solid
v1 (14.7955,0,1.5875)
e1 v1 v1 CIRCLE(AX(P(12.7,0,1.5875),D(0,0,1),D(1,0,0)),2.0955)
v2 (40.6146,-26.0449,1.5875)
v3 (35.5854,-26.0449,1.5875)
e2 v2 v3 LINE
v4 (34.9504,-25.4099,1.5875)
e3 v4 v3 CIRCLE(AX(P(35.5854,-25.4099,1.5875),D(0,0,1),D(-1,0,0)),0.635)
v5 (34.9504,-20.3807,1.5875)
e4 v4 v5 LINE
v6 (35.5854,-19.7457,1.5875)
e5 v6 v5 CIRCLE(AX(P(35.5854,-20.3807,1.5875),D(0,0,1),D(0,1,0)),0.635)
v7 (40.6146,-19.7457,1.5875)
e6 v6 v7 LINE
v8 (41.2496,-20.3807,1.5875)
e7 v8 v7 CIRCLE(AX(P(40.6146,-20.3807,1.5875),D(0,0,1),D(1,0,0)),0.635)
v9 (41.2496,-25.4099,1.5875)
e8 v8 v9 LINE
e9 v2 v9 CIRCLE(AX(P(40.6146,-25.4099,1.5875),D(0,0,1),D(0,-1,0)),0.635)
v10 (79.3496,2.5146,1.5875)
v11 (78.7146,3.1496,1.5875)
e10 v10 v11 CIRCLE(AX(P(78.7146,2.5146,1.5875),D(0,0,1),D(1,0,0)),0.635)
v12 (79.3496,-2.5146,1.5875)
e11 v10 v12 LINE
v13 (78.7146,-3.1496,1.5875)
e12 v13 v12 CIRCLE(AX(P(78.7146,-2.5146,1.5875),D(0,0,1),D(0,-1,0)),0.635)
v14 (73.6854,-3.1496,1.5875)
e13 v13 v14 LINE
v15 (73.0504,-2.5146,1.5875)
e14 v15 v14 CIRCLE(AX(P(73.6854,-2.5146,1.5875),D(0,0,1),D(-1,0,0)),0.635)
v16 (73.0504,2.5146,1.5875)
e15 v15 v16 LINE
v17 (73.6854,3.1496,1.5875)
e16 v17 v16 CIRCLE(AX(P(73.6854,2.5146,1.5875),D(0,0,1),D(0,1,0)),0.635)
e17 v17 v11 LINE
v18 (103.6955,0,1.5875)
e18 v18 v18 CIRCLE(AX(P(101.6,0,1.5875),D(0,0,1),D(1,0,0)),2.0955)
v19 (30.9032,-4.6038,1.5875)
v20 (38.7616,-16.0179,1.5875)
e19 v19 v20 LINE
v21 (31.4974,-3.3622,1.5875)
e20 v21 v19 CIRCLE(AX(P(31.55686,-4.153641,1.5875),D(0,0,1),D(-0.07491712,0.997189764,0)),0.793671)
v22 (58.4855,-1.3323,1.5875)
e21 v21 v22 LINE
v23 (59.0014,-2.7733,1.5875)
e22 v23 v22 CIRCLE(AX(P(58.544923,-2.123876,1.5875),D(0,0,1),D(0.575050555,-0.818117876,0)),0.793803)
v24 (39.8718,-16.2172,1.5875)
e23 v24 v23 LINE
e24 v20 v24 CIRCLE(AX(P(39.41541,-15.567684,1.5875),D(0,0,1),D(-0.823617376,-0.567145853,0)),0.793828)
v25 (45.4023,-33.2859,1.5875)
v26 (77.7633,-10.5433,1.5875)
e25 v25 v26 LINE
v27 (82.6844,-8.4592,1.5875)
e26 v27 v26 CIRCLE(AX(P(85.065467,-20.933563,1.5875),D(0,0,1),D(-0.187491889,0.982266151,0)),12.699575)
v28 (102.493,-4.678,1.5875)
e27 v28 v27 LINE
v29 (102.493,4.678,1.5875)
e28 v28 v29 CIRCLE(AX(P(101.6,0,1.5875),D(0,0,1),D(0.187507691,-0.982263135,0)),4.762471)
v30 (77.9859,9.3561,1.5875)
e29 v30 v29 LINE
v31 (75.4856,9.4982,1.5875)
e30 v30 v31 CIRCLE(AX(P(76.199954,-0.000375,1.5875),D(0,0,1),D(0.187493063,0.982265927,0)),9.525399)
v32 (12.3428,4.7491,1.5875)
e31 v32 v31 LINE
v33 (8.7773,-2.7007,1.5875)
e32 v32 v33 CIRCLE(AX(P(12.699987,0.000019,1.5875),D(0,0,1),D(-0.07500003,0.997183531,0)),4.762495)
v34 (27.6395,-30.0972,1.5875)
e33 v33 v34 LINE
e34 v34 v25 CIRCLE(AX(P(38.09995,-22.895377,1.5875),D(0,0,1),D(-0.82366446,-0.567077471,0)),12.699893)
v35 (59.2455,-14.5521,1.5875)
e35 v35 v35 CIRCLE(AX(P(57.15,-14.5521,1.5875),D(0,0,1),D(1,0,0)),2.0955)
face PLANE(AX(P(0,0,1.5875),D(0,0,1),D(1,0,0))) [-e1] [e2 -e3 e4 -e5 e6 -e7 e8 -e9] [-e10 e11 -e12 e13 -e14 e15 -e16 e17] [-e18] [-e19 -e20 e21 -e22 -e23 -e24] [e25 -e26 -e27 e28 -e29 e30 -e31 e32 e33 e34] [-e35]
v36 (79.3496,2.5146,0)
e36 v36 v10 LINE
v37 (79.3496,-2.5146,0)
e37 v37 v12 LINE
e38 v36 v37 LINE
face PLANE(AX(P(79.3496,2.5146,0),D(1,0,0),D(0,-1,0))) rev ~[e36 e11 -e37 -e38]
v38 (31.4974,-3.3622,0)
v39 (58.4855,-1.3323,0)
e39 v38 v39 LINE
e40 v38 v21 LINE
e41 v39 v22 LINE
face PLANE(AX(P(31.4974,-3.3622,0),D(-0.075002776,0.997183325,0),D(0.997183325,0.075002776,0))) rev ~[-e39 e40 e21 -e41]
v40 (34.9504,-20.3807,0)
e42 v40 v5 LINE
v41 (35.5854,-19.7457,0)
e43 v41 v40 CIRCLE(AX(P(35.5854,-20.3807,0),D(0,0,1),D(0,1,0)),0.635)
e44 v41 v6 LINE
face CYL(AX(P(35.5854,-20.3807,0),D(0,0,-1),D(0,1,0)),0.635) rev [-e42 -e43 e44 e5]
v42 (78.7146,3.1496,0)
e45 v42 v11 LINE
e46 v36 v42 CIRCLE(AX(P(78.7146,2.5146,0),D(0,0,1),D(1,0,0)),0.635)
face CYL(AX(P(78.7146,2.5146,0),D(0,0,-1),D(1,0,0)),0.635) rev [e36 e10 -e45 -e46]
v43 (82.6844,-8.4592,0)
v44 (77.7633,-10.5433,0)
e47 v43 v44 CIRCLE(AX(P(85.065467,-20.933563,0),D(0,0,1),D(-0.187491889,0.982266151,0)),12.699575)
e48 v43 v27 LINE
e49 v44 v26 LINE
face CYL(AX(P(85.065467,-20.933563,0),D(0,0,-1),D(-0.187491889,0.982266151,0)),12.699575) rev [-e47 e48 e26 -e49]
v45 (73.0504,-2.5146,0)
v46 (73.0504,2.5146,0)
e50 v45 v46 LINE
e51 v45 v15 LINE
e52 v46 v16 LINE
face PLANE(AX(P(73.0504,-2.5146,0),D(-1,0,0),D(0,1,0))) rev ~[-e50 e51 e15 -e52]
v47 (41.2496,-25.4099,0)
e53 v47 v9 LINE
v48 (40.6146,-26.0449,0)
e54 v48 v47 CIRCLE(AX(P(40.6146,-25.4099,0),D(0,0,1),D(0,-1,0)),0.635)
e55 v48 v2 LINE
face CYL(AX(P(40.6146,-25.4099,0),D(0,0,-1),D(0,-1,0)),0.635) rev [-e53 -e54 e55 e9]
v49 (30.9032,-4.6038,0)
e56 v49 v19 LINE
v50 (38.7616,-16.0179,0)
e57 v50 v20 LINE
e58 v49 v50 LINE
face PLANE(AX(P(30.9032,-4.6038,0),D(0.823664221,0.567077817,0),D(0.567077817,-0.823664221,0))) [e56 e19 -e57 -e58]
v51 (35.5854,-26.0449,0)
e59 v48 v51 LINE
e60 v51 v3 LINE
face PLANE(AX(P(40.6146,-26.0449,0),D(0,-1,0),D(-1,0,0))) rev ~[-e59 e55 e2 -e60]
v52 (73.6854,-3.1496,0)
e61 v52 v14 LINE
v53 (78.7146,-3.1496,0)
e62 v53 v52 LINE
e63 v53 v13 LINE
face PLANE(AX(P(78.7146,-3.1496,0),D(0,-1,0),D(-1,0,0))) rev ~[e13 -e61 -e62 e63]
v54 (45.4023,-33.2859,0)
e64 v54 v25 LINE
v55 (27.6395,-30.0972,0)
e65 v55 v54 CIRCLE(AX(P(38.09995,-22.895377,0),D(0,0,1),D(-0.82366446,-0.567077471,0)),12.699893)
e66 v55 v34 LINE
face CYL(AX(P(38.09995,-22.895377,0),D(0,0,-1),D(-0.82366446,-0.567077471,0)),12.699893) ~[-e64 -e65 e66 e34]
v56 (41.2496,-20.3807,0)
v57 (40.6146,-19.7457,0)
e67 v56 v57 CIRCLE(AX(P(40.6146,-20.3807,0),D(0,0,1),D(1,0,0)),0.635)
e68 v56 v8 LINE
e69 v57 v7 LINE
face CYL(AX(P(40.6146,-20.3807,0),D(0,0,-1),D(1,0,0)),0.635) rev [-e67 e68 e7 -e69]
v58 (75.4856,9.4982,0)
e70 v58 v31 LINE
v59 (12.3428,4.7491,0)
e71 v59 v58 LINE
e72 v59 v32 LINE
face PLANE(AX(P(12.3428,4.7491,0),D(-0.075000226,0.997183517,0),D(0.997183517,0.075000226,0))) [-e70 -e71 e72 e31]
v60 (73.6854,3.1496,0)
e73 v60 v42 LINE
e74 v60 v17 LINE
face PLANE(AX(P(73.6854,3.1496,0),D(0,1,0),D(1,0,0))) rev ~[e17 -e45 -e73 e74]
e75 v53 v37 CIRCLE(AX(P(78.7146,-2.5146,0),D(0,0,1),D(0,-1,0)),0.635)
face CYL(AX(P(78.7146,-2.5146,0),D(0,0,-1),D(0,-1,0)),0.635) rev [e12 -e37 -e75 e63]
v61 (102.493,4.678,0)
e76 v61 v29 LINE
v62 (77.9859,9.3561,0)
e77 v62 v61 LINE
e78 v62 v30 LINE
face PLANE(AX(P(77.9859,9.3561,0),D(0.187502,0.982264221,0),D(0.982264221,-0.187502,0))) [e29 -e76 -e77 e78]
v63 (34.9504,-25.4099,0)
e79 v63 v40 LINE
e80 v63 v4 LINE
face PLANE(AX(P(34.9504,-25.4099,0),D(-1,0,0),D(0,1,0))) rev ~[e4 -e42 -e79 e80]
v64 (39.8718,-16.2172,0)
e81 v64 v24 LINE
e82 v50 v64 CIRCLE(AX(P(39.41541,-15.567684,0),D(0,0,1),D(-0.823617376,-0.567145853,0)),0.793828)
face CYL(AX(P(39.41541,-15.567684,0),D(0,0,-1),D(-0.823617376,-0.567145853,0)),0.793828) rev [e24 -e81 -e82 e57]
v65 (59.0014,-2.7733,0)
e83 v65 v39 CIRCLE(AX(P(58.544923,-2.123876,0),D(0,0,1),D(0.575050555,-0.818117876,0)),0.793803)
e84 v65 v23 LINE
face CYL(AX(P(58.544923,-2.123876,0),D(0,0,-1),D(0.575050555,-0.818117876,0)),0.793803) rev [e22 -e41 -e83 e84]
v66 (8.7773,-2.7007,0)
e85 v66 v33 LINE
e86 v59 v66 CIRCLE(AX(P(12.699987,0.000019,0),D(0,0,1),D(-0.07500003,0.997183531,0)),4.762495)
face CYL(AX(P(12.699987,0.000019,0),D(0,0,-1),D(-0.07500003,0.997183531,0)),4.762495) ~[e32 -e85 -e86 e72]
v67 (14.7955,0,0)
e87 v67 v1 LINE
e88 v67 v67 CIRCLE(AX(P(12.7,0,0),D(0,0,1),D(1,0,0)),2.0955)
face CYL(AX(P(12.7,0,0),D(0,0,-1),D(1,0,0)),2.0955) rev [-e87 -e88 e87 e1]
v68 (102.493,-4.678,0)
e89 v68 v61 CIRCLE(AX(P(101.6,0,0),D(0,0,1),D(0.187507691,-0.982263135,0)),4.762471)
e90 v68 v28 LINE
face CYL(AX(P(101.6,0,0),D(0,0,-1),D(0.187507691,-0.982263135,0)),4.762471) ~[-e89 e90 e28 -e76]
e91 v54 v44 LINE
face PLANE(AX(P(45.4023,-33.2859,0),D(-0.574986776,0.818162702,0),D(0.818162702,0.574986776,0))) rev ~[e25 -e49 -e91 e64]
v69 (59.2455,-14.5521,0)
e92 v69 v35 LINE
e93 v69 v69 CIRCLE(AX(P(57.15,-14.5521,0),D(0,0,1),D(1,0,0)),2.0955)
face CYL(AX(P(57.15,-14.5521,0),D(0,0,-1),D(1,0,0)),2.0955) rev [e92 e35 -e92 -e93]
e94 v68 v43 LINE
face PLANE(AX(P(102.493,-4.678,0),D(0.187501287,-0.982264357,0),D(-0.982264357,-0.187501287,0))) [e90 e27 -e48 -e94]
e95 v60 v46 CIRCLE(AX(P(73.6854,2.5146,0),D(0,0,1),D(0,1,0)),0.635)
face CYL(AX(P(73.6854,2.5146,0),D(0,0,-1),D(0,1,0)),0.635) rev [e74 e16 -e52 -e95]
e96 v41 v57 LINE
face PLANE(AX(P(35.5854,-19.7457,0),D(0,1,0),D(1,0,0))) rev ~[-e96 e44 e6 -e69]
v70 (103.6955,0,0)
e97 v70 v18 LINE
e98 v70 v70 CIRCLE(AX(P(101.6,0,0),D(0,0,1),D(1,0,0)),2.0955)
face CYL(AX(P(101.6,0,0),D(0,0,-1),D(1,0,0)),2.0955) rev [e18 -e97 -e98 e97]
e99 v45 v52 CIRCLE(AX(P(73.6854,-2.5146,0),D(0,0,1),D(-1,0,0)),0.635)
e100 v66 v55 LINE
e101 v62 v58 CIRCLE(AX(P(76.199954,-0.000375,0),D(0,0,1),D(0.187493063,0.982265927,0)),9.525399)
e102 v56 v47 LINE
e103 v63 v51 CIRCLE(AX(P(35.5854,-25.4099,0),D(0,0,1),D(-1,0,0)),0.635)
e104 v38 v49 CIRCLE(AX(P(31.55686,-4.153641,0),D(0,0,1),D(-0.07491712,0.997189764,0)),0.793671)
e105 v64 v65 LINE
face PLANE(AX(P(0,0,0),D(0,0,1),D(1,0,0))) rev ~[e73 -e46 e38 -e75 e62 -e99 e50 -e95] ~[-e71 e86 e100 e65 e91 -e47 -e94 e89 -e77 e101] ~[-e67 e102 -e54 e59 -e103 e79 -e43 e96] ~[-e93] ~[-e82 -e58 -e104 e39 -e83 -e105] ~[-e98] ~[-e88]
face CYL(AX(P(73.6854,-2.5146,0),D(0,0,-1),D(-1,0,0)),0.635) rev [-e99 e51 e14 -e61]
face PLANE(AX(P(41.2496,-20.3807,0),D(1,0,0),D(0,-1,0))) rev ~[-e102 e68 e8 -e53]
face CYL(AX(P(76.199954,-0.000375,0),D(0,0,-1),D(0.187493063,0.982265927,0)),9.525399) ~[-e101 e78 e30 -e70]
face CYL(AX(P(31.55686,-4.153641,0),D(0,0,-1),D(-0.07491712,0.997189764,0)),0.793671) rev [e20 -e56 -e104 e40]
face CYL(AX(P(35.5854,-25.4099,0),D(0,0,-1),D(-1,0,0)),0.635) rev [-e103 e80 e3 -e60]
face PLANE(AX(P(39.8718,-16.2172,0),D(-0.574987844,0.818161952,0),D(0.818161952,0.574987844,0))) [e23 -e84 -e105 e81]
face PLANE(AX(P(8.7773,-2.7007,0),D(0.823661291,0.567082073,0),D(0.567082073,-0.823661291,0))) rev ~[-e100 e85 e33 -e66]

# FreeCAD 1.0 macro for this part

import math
import FreeCAD as App
import Part
import Sketcher
Q = App.Units.Quantity

doc = App.newDocument("Part")
body = doc.addObject("PartDesign::Body", "Body")

sketch1 = doc.addObject("Sketcher::SketchObject", "Sketch")
body.addObject(sketch1)
sketch1.AttachmentSupport = (doc.XY_Plane, [""])
sketch1.MapMode = "FlatFace"
sketch1.addGeometry(Part.LineSegment(App.Vector(75.5, 9.5, 0), App.Vector(12.3, 4.7, 0)), False)
sketch1.addGeometry(Part.ArcOfCircle(Part.Circle(App.Vector(12.7, 0, 0), App.Vector(0, 0, 1), 4.8), math.radians(94), math.radians(215)), False)
sketch1.addGeometry(Part.LineSegment(App.Vector(8.8, -2.7, 0), App.Vector(27.6, -30.1, 0)), False)
sketch1.addGeometry(Part.ArcOfCircle(Part.Circle(App.Vector(38.1, -22.9, 0), App.Vector(0, 0, 1), 12.7), math.radians(-145), math.radians(-55)), False)
sketch1.addGeometry(Part.LineSegment(App.Vector(45.4, -33.3, 0), App.Vector(77.8, -10.5, 0)), False)
sketch1.addGeometry(Part.ArcOfCircle(Part.Circle(App.Vector(85.1, -20.9, 0), App.Vector(0, 0, 1), 12.7), math.radians(101), math.radians(125)), False)
sketch1.addGeometry(Part.LineSegment(App.Vector(82.7, -8.5, 0), App.Vector(102.5, -4.7, 0)), False)
sketch1.addGeometry(Part.ArcOfCircle(Part.Circle(App.Vector(101.6, 0, 0), App.Vector(0, 0, 1), 4.8), math.radians(-79), math.radians(79)), False)
sketch1.addGeometry(Part.LineSegment(App.Vector(102.5, 4.7, 0), App.Vector(78, 9.4, 0)), False)
sketch1.addGeometry(Part.ArcOfCircle(Part.Circle(App.Vector(76.2, 0, 0), App.Vector(0, 0, 1), 9.5), math.radians(79.19), math.radians(94.3)), False)
sketch1.addGeometry(Part.ArcOfCircle(Part.Circle(App.Vector(35.6, -20.4, 0), App.Vector(0, 0, 1), 0.6), math.radians(90), math.radians(180)), False)
sketch1.addGeometry(Part.LineSegment(App.Vector(35.6, -19.7, 0), App.Vector(40.6, -19.7, 0)), False)
sketch1.addGeometry(Part.ArcOfCircle(Part.Circle(App.Vector(40.6, -20.4, 0), App.Vector(0, 0, 1), 0.6), math.radians(0), math.radians(90)), False)
sketch1.addGeometry(Part.LineSegment(App.Vector(41.2, -20.4, 0), App.Vector(41.2, -25.4, 0)), False)
sketch1.addGeometry(Part.ArcOfCircle(Part.Circle(App.Vector(40.6, -25.4, 0), App.Vector(0, 0, 1), 0.6), math.radians(-90), math.radians(0)), False)
sketch1.addGeometry(Part.LineSegment(App.Vector(40.6, -26, 0), App.Vector(35.6, -26, 0)), False)
sketch1.addGeometry(Part.ArcOfCircle(Part.Circle(App.Vector(35.6, -25.4, 0), App.Vector(0, 0, 1), 0.6), math.radians(180), math.radians(270)), False)
sketch1.addGeometry(Part.LineSegment(App.Vector(35, -25.4, 0), App.Vector(35, -20.4, 0)), False)
sketch1.addGeometry(Part.Circle(App.Vector(57.1, -14.6, 0), App.Vector(0, 0, 1), 2.1), False)
sketch1.addGeometry(Part.ArcOfCircle(Part.Circle(App.Vector(31.6, -4.2, 0), App.Vector(0, 0, 1), 0.8), math.radians(94), math.radians(215)), False)
sketch1.addGeometry(Part.LineSegment(App.Vector(31.5, -3.4, 0), App.Vector(58.5, -1.3, 0)), False)
sketch1.addGeometry(Part.ArcOfCircle(Part.Circle(App.Vector(58.5, -2.1, 0), App.Vector(0, 0, 1), 0.8), math.radians(-55), math.radians(94)), False)
sketch1.addGeometry(Part.LineSegment(App.Vector(59, -2.8, 0), App.Vector(39.9, -16.2, 0)), False)
sketch1.addGeometry(Part.ArcOfCircle(Part.Circle(App.Vector(39.4, -15.6, 0), App.Vector(0, 0, 1), 0.8), math.radians(-145), math.radians(-55)), False)
sketch1.addGeometry(Part.LineSegment(App.Vector(38.8, -16, 0), App.Vector(30.9, -4.6, 0)), False)
sketch1.addGeometry(Part.Circle(App.Vector(12.7, 0, 0), App.Vector(0, 0, 1), 2.1), False)
sketch1.addGeometry(Part.ArcOfCircle(Part.Circle(App.Vector(73.7, 2.5, 0), App.Vector(0, 0, 1), 0.6), math.radians(90), math.radians(180)), False)
sketch1.addGeometry(Part.LineSegment(App.Vector(73.7, 3.1, 0), App.Vector(78.7, 3.1, 0)), False)
sketch1.addGeometry(Part.ArcOfCircle(Part.Circle(App.Vector(78.7, 2.5, 0), App.Vector(0, 0, 1), 0.6), math.radians(0), math.radians(90)), False)
sketch1.addGeometry(Part.LineSegment(App.Vector(79.3, 2.5, 0), App.Vector(79.3, -2.5, 0)), False)
sketch1.addGeometry(Part.ArcOfCircle(Part.Circle(App.Vector(78.7, -2.5, 0), App.Vector(0, 0, 1), 0.6), math.radians(-90), math.radians(0)), False)
sketch1.addGeometry(Part.LineSegment(App.Vector(78.7, -3.1, 0), App.Vector(73.7, -3.1, 0)), False)
sketch1.addGeometry(Part.ArcOfCircle(Part.Circle(App.Vector(73.7, -2.5, 0), App.Vector(0, 0, 1), 0.6), math.radians(180), math.radians(270)), False)
sketch1.addGeometry(Part.LineSegment(App.Vector(73.1, -2.5, 0), App.Vector(73.1, 2.5, 0)), False)
sketch1.addGeometry(Part.Circle(App.Vector(101.6, 0, 0), App.Vector(0, 0, 1), 2.1), False)
sketch1.addConstraint(Sketcher.Constraint("Tangent", 0, 2, 1, 1))
sketch1.addConstraint(Sketcher.Constraint("Tangent", 1, 2, 2, 1))
sketch1.addConstraint(Sketcher.Constraint("Tangent", 2, 2, 3, 1))
sketch1.addConstraint(Sketcher.Constraint("Tangent", 3, 2, 4, 1))
sketch1.addConstraint(Sketcher.Constraint("Tangent", 4, 2, 5, 2))
sketch1.addConstraint(Sketcher.Constraint("Tangent", 5, 1, 6, 1))
sketch1.addConstraint(Sketcher.Constraint("Tangent", 6, 2, 7, 1))
sketch1.addConstraint(Sketcher.Constraint("Tangent", 7, 2, 8, 1))
sketch1.addConstraint(Sketcher.Constraint("Tangent", 8, 2, 9, 1))
sketch1.addConstraint(Sketcher.Constraint("Tangent", 9, 2, 0, 1))
sketch1.addConstraint(Sketcher.Constraint("Tangent", 10, 1, 11, 1))
sketch1.addConstraint(Sketcher.Constraint("Tangent", 11, 2, 12, 2))
sketch1.addConstraint(Sketcher.Constraint("Tangent", 12, 1, 13, 1))
sketch1.addConstraint(Sketcher.Constraint("Tangent", 13, 2, 14, 2))
sketch1.addConstraint(Sketcher.Constraint("Tangent", 14, 1, 15, 1))
sketch1.addConstraint(Sketcher.Constraint("Tangent", 15, 2, 16, 2))
sketch1.addConstraint(Sketcher.Constraint("Tangent", 16, 1, 17, 1))
sketch1.addConstraint(Sketcher.Constraint("Tangent", 17, 2, 10, 2))
sketch1.addConstraint(Sketcher.Constraint("Tangent", 19, 1, 20, 1))
sketch1.addConstraint(Sketcher.Constraint("Tangent", 20, 2, 21, 2))
sketch1.addConstraint(Sketcher.Constraint("Tangent", 21, 1, 22, 1))
sketch1.addConstraint(Sketcher.Constraint("Tangent", 22, 2, 23, 2))
sketch1.addConstraint(Sketcher.Constraint("Tangent", 23, 1, 24, 1))
sketch1.addConstraint(Sketcher.Constraint("Tangent", 24, 2, 19, 2))
sketch1.addConstraint(Sketcher.Constraint("Tangent", 26, 1, 27, 1))
sketch1.addConstraint(Sketcher.Constraint("Tangent", 27, 2, 28, 2))
sketch1.addConstraint(Sketcher.Constraint("Tangent", 28, 1, 29, 1))
sketch1.addConstraint(Sketcher.Constraint("Tangent", 29, 2, 30, 2))
sketch1.addConstraint(Sketcher.Constraint("Tangent", 30, 1, 31, 1))
sketch1.addConstraint(Sketcher.Constraint("Tangent", 31, 2, 32, 2))
sketch1.addConstraint(Sketcher.Constraint("Tangent", 32, 1, 33, 1))
sketch1.addConstraint(Sketcher.Constraint("Tangent", 33, 2, 26, 2))
sketch1.addConstraint(Sketcher.Constraint("Horizontal", 11))
sketch1.addConstraint(Sketcher.Constraint("Vertical", 13))
sketch1.addConstraint(Sketcher.Constraint("Horizontal", 15))
sketch1.addConstraint(Sketcher.Constraint("Vertical", 17))
sketch1.addConstraint(Sketcher.Constraint("Horizontal", 27))
sketch1.addConstraint(Sketcher.Constraint("Vertical", 29))
sketch1.addConstraint(Sketcher.Constraint("Horizontal", 31))
sketch1.addConstraint(Sketcher.Constraint("Vertical", 33))
sketch1.addConstraint(Sketcher.Constraint("Coincident", 25, 3, 1, 3))
sketch1.addConstraint(Sketcher.Constraint("Coincident", 34, 3, 7, 3))
sketch1.addConstraint(Sketcher.Constraint("Equal", 3, 5))
sketch1.addConstraint(Sketcher.Constraint("Equal", 1, 7))
sketch1.addConstraint(Sketcher.Constraint("Equal", 10, 12))
sketch1.addConstraint(Sketcher.Constraint("Equal", 12, 14))
sketch1.addConstraint(Sketcher.Constraint("Equal", 14, 16))
sketch1.addConstraint(Sketcher.Constraint("Equal", 19, 21))
sketch1.addConstraint(Sketcher.Constraint("Equal", 21, 23))
sketch1.addConstraint(Sketcher.Constraint("Equal", 18, 25))
sketch1.addConstraint(Sketcher.Constraint("Equal", 16, 26))
sketch1.addConstraint(Sketcher.Constraint("Equal", 26, 28))
sketch1.addConstraint(Sketcher.Constraint("Equal", 28, 30))
sketch1.addConstraint(Sketcher.Constraint("Equal", 30, 32))
sketch1.addConstraint(Sketcher.Constraint("Equal", 25, 34))
sketch1.addConstraint(Sketcher.Constraint("Symmetric", 6, 2, 7, 2, -1))
sketch1.addConstraint(Sketcher.Constraint("PointOnObject", 1, 3, -1))
sketch1.addConstraint(Sketcher.Constraint("PointOnObject", 9, 3, -1))
sketch1.addConstraint(Sketcher.Constraint("Parallel", 0, 20))
sketch1.addConstraint(Sketcher.Constraint("Parallel", 4, 22))
sketch1.addConstraint(Sketcher.Constraint("Parallel", 2, 24))
sketch1.addConstraint(Sketcher.Constraint("Equal", 15, 27))
sketch1.addConstraint(Sketcher.Constraint("Equal", 31, 13))
sketch1.addConstraint(Sketcher.Constraint("Equal", 17, 29))
sketch1.addConstraint(Sketcher.Constraint("Radius", 3, Q("0.5 in")))
sketch1.addConstraint(Sketcher.Constraint("Diameter", 18, Q("0.165 in")))
sketch1.addConstraint(Sketcher.Constraint("Radius", 1, Q("0.1875 in")))
sketch1.addConstraint(Sketcher.Constraint("Radius", 9, Q("0.375 in")))
sketch1.addConstraint(Sketcher.Constraint("Radius", 19, Q("0.031248 in")))
sketch1.addConstraint(Sketcher.Constraint("DistanceX", 1, 3, 3, 3, Q("1 in")))
sketch1.addConstraint(Sketcher.Constraint("DistanceX", 9, 3, 7, 3, Q("1 in")))
sketch1.addConstraint(Sketcher.Constraint("DistanceX", -1, 1, 1, 3, Q("0.5 in")))
sketch1.addConstraint(Sketcher.Constraint("DistanceX", 3, 3, 7, 3, Q("2.5 in")))
sketch1.addConstraint(Sketcher.Constraint("DistanceX", 3, 3, 18, 3, Q("0.75 in")))
sketch1.addConstraint(Sketcher.Constraint("Radius", 10, Q("0.025 in")))
sketch1.addConstraint(Sketcher.Constraint("DistanceX", 11, 1, 11, 2, Q("0.198 in")))
sketch1.addConstraint(Sketcher.Constraint("DistanceY", 5, 3, 6, 2, Q("0.64 in")))
sketch1.addConstraint(Sketcher.Constraint("DistanceX", -1, 1, 10, 3, Q("1.401 in")))
sketch1.addConstraint(Sketcher.Constraint("DistanceX", -1, 1, 26, 3, Q("2.901 in")))
sketch1.addConstraint(Sketcher.Constraint("DistanceY", -1, 1, 26, 3, Q("0.099 in")))
sketch1.addConstraint(Sketcher.Constraint("DistanceY", 3, 3, 10, 3, Q("0.099 in")))
sketch1.addConstraint(Sketcher.Constraint("DistanceY", 3, 3, -1, 1, Q("0.9014 in")))
sketch1.addConstraint(Sketcher.Constraint("DistanceX", -1, 1, 19, 3, Q("1.2424 in")))
sketch1.addConstraint(Sketcher.Constraint("DistanceY", 23, 3, -1, 1, Q("0.6129 in")))
sketch1.addConstraint(Sketcher.Constraint("DistanceX", -1, 1, 21, 1, Q("2.3229 in")))
sketch1.addConstraint(Sketcher.Constraint("DistanceY", 18, 3, 21, 3, Q("0.4893 in")))
pad1 = doc.addObject("PartDesign::Pad", "Pad")
body.addObject(pad1)
pad1.Profile = sketch1
pad1.Length = Q("0.0625 in")

doc.recompute()
